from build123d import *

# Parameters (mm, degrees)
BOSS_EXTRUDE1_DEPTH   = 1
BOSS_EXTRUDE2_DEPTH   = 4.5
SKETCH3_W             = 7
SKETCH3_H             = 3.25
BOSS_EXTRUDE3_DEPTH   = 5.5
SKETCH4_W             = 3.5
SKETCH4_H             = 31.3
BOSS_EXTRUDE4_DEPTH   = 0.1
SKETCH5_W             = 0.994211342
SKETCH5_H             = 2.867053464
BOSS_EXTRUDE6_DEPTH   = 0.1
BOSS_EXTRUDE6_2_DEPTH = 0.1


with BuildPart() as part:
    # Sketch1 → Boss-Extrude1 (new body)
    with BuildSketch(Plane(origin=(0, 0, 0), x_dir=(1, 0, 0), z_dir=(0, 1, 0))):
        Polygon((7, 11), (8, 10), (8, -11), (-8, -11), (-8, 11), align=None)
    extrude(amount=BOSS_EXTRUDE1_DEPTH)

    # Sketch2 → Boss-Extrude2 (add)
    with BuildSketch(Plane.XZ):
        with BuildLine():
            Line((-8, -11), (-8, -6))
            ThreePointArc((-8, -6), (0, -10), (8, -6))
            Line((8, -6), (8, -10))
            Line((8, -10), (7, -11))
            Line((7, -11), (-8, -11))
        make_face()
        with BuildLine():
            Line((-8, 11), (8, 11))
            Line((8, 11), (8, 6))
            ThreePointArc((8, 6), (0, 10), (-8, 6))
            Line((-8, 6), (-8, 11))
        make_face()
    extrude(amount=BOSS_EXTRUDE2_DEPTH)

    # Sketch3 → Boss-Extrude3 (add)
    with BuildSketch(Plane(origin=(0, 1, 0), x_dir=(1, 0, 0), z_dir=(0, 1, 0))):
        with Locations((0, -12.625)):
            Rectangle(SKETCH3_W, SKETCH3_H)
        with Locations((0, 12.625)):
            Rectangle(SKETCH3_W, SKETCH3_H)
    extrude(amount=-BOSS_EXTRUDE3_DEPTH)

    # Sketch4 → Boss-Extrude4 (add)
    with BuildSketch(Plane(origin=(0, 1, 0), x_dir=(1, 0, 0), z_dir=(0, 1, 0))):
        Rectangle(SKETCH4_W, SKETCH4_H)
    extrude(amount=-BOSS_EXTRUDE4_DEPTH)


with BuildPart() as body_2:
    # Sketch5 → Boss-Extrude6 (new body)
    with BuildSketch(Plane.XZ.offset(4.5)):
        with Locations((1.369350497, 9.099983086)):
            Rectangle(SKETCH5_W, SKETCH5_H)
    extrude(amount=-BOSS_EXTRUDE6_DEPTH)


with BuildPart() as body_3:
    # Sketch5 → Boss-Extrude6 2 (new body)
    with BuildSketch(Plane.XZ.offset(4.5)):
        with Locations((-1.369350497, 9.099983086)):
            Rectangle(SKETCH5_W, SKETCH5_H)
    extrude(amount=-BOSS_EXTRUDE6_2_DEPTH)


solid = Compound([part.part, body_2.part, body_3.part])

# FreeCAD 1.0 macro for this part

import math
import FreeCAD as App
import Part
import Sketcher

V = App.Vector

doc = App.newDocument("Part")
params = doc.addObject("Spreadsheet::Sheet", "Params")
for row, (alias, value) in enumerate([
    ("sketch1_width", "15 mm"),
    ("sketch1_width2", "16 mm"),
    ("sketch1_height", "22 mm"),
    ("sketch1_height2", "21 mm"),
    ("pad1_length", "1 mm"),
    ("sketch2_radius", "10 mm"),
    ("sketch2_width", "15 mm"),
    ("sketch2_width2", "16 mm"),
    ("sketch2_height", "5 mm"),
    ("sketch2_height2", "4 mm"),
    ("pad2_length", "4.5 mm"),
    ("sketch3_width", "7 mm"),
    ("sketch3_height", "3.25 mm"),
    ("pad3_length", "5.5 mm"),
    ("sketch4_width", "3.5 mm"),
    ("sketch4_height", "31.3 mm"),
    ("pad4_length", "0.1 mm"),
    ("pad5_length", "0.1 mm"),
    ("pad6_length", "0.1 mm"),
], start=1):
    params.set(f"A{row}", alias)
    params.set(f"B{row}", "=" + value)
    params.setAlias(f"B{row}", alias)

body = doc.addObject("PartDesign::Body", "Body")

# Sketch on XZ plane
sketch1 = body.newObject("Sketcher::SketchObject", "Sketch")
sketch1.AttachmentSupport = (doc.getObject("XZ_Plane"), [""])
sketch1.MapMode = "FlatFace"
sketch1.addGeometry([
    Part.LineSegment(V(8, -10, 0), V(7, -11, 0)),  # 0
    Part.LineSegment(V(7, -11, 0), V(-8, -11, 0)),  # 1
    Part.LineSegment(V(-8, -11, 0), V(-8, 11, 0)),  # 2
    Part.LineSegment(V(-8, 11, 0), V(8, 11, 0)),  # 3
    Part.LineSegment(V(8, 11, 0), V(8, -10, 0)),  # 4
], False)
sketch1.addConstraint([
    Sketcher.Constraint("Coincident", 0, 2, 1, 1),
    Sketcher.Constraint("Coincident", 1, 2, 2, 1),
    Sketcher.Constraint("Coincident", 2, 2, 3, 1),
    Sketcher.Constraint("Coincident", 3, 2, 4, 1),
    Sketcher.Constraint("Coincident", 4, 2, 0, 1),
    Sketcher.Constraint("Horizontal", 1),
    Sketcher.Constraint("Vertical", 2),
    Sketcher.Constraint("Horizontal", 3),
    Sketcher.Constraint("Vertical", 4),
    Sketcher.Constraint("Symmetric", 1, 2, 3, 2, -1, 1),
    Sketcher.Constraint("DistanceX", 1, 2, 1, 1, 15.0),
    Sketcher.Constraint("DistanceX", 3, 1, 3, 2, 16.0),
    Sketcher.Constraint("DistanceY", 2, 1, 2, 2, 22.0),
    Sketcher.Constraint("DistanceY", 4, 2, 4, 1, 21.0),
])
sketch1.setExpression("Constraints[10]", "Params.sketch1_width")
sketch1.setExpression("Constraints[11]", "Params.sketch1_width2")
sketch1.setExpression("Constraints[12]", "Params.sketch1_height")
sketch1.setExpression("Constraints[13]", "Params.sketch1_height2")
pad1 = body.newObject("PartDesign::Pad", "Pad")
pad1.Profile = sketch1
pad1.setExpression("Length", "Params.pad1_length")
pad1.Reversed = True

# Sketch on XZ plane
sketch2 = body.newObject("Sketcher::SketchObject", "Sketch001")
sketch2.AttachmentSupport = (doc.getObject("XZ_Plane"), [""])
sketch2.MapMode = "FlatFace"
sketch2.addGeometry([
    Part.LineSegment(V(-8, -6, 0), V(-8, -11, 0)),  # 0
    Part.LineSegment(V(-8, -11, 0), V(7, -11, 0)),  # 1
    Part.LineSegment(V(7, -11, 0), V(8, -10, 0)),  # 2
    Part.LineSegment(V(8, -10, 0), V(8, -6, 0)),  # 3
    Part.ArcOfCircle(Part.Circle(V(0, 0, 0), V(0, 0, 1), 10), math.radians(-143), math.radians(-37)),  # 4
    Part.LineSegment(V(8, 11, 0), V(-8, 11, 0)),  # 5
    Part.LineSegment(V(-8, 11, 0), V(-8, 6, 0)),  # 6
    Part.ArcOfCircle(Part.Circle(V(0, 0, 0), V(0, 0, 1), 10), math.radians(37), math.radians(143)),  # 7
    Part.LineSegment(V(8, 6, 0), V(8, 11, 0)),  # 8
], False)
sketch2.addConstraint([
    Sketcher.Constraint("Coincident", 0, 2, 1, 1),
    Sketcher.Constraint("Coincident", 1, 2, 2, 1),
    Sketcher.Constraint("Coincident", 2, 2, 3, 1),
    Sketcher.Constraint("Coincident", 3, 2, 4, 2),
    Sketcher.Constraint("Coincident", 4, 1, 0, 1),
    Sketcher.Constraint("Coincident", 5, 2, 6, 1),
    Sketcher.Constraint("Coincident", 6, 2, 7, 2),
    Sketcher.Constraint("Coincident", 7, 1, 8, 1),
    Sketcher.Constraint("Coincident", 8, 2, 5, 1),
    Sketcher.Constraint("Vertical", 0),
    Sketcher.Constraint("Horizontal", 1),
    Sketcher.Constraint("Vertical", 3),
    Sketcher.Constraint("Horizontal", 5),
    Sketcher.Constraint("Vertical", 6),
    Sketcher.Constraint("Vertical", 8),
    Sketcher.Constraint("Coincident", 4, 3, -1, 1),
    Sketcher.Constraint("Coincident", 7, 3, -1, 1),
    Sketcher.Constraint("Equal", 4, 7),
    Sketcher.Constraint("Symmetric", 0, 2, 8, 2, -1, 1),
    Sketcher.Constraint("Horizontal", 3, 2, 4, 1),
    Sketcher.Constraint("Horizontal", 6, 2, 7, 1),
    Sketcher.Constraint("Radius", 4, 10.0),
    Sketcher.Constraint("DistanceX", 1, 1, 1, 2, 15.0),
    Sketcher.Constraint("DistanceX", 5, 2, 5, 1, 16.0),
    Sketcher.Constraint("DistanceY", 0, 2, 0, 1, 5.0),
    Sketcher.Constraint("DistanceY", 3, 1, 3, 2, 4.0),
])
sketch2.setExpression("Constraints[21]", "Params.sketch2_radius")
sketch2.setExpression("Constraints[22]", "Params.sketch2_width")
sketch2.setExpression("Constraints[23]", "Params.sketch2_width2")
sketch2.setExpression("Constraints[24]", "Params.sketch2_height")
sketch2.setExpression("Constraints[25]", "Params.sketch2_height2")
pad2 = body.newObject("PartDesign::Pad", "Pad001")
pad2.Profile = sketch2
pad2.setExpression("Length", "Params.pad2_length")

# Sketch on XZ plane
sketch3 = body.newObject("Sketcher::SketchObject", "Sketch002")
sketch3.AttachmentSupport = (doc.getObject("XZ_Plane"), [""])
sketch3.MapMode = "FlatFace"
sketch3.AttachmentOffset = App.Placement(V(0, 0, -1), App.Rotation())
sketch3.addGeometry([
    Part.LineSegment(V(-3.5, 11, 0), V(-3.5, 14.2, 0)),  # 0
    Part.LineSegment(V(-3.5, 14.2, 0), V(3.5, 14.2, 0)),  # 1
    Part.LineSegment(V(3.5, 14.2, 0), V(3.5, 11, 0)),  # 2
    Part.LineSegment(V(3.5, 11, 0), V(-3.5, 11, 0)),  # 3
    Part.LineSegment(V(-3.5, -14.2, 0), V(-3.5, -11, 0)),  # 4
    Part.LineSegment(V(-3.5, -11, 0), V(3.5, -11, 0)),  # 5
    Part.LineSegment(V(3.5, -11, 0), V(3.5, -14.2, 0)),  # 6
    Part.LineSegment(V(3.5, -14.2, 0), V(-3.5, -14.2, 0)),  # 7
], False)
sketch3.addConstraint([
    Sketcher.Constraint("Coincident", 0, 2, 1, 1),
    Sketcher.Constraint("Coincident", 1, 2, 2, 1),
    Sketcher.Constraint("Coincident", 2, 2, 3, 1),
    Sketcher.Constraint("Coincident", 3, 2, 0, 1),
    Sketcher.Constraint("Coincident", 4, 2, 5, 1),
    Sketcher.Constraint("Coincident", 5, 2, 6, 1),
    Sketcher.Constraint("Coincident", 6, 2, 7, 1),
    Sketcher.Constraint("Coincident", 7, 2, 4, 1),
    Sketcher.Constraint("Vertical", 0),
    Sketcher.Constraint("Horizontal", 1),
    Sketcher.Constraint("Vertical", 2),
    Sketcher.Constraint("Horizontal", 3),
    Sketcher.Constraint("Vertical", 4),
    Sketcher.Constraint("Horizontal", 5),
    Sketcher.Constraint("Vertical", 6),
    Sketcher.Constraint("Horizontal", 7),
    Sketcher.Constraint("Symmetric", 2, 2, 4, 2, -1, 1),
    Sketcher.Constraint("Symmetric", 0, 2, 6, 2, -1, 1),
    Sketcher.Constraint("Vertical", 3, 2, 4, 2),
    Sketcher.Constraint("DistanceX", 1, 1, 1, 2, 7.0),
    Sketcher.Constraint("DistanceY", -1, 1, 2, 2, 11.0),
    Sketcher.Constraint("DistanceY", 0, 1, 0, 2, 3.25),
])
sketch3.setExpression("Constraints[19]", "Params.sketch3_width")
sketch3.setExpression("Constraints[21]", "Params.sketch3_height")
pad3 = body.newObject("PartDesign::Pad", "Pad002")
pad3.Profile = sketch3
pad3.setExpression("Length", "Params.pad3_length")

# Sketch on XZ plane
sketch4 = body.newObject("Sketcher::SketchObject", "Sketch003")
sketch4.AttachmentSupport = (doc.getObject("XZ_Plane"), [""])
sketch4.MapMode = "FlatFace"
sketch4.AttachmentOffset = App.Placement(V(0, 0, -1), App.Rotation())
sketch4.addGeometry([
    Part.LineSegment(V(-1.8, -15.7, 0), V(-1.8, 15.7, 0)),
    Part.LineSegment(V(-1.8, 15.7, 0), V(1.8, 15.7, 0)),
    Part.LineSegment(V(1.8, 15.7, 0), V(1.8, -15.7, 0)),
    Part.LineSegment(V(1.8, -15.7, 0), V(-1.8, -15.7, 0)),
], False)
sketch4.addConstraint([
    Sketcher.Constraint("Coincident", 0, 2, 1, 1),
    Sketcher.Constraint("Coincident", 1, 2, 2, 1),
    Sketcher.Constraint("Coincident", 2, 2, 3, 1),
    Sketcher.Constraint("Coincident", 3, 2, 0, 1),
    Sketcher.Constraint("Vertical", 0),
    Sketcher.Constraint("Horizontal", 1),
    Sketcher.Constraint("Vertical", 2),
    Sketcher.Constraint("Horizontal", 3),
    Sketcher.Constraint("Symmetric", 0, 2, 2, 2, -1, 1),
    Sketcher.Constraint("DistanceX", 1, 1, 1, 2, 3.5),
    Sketcher.Constraint("DistanceY", 0, 1, 0, 2, 31.3),
])
sketch4.setExpression("Constraints[9]", "Params.sketch4_width")
sketch4.setExpression("Constraints[10]", "Params.sketch4_height")
pad4 = body.newObject("PartDesign::Pad", "Pad003")
pad4.Profile = sketch4
pad4.setExpression("Length", "Params.pad4_length")
body2 = doc.addObject("PartDesign::Body", "Body001")

# Sketch on XZ plane
sketch5 = body2.newObject("Sketcher::SketchObject", "Sketch004")
sketch5.AttachmentSupport = (doc.getObject("XZ_Plane001"), [""])
sketch5.MapMode = "FlatFace"
sketch5.AttachmentOffset = App.Placement(V(0, 0, 4.5), App.Rotation())
sketch5.addGeometry([
    Part.LineSegment(V(0.9, 10.5, 0), V(0.9, 7.7, 0)),
    Part.LineSegment(V(0.9, 7.7, 0), V(1.9, 7.7, 0)),
    Part.LineSegment(V(1.9, 7.7, 0), V(1.9, 10.5, 0)),
    Part.LineSegment(V(1.9, 10.5, 0), V(0.9, 10.5, 0)),
], False)
sketch5.addConstraint([
    Sketcher.Constraint("Coincident", 0, 2, 1, 1),
    Sketcher.Constraint("Coincident", 1, 2, 2, 1),
    Sketcher.Constraint("Coincident", 2, 2, 3, 1),
    Sketcher.Constraint("Coincident", 3, 2, 0, 1),
    Sketcher.Constraint("Vertical", 0),
    Sketcher.Constraint("Horizontal", 1),
    Sketcher.Constraint("Vertical", 2),
    Sketcher.Constraint("Horizontal", 3),
    Sketcher.Constraint("DistanceX", 1, 1, 1, 2, 0.994211),
    Sketcher.Constraint("DistanceY", 0, 2, 0, 1, 2.867053),
    Sketcher.Constraint("DistanceY", -1, 1, 2, 2, 10.53351),
    Sketcher.Constraint("DistanceX", -1, 1, 0, 2, 0.872245),
])
pad5 = body2.newObject("PartDesign::Pad", "Pad004")
pad5.Profile = sketch5
pad5.setExpression("Length", "Params.pad5_length")
pad5.Reversed = True
body3 = doc.addObject("PartDesign::Body", "Body002")

# Sketch on XZ plane
sketch6 = body3.newObject("Sketcher::SketchObject", "Sketch005")
sketch6.AttachmentSupport = (doc.getObject("XZ_Plane002"), [""])
sketch6.MapMode = "FlatFace"
sketch6.AttachmentOffset = App.Placement(V(0, 0, 4.5), App.Rotation())
sketch6.addGeometry([
    Part.LineSegment(V(-1.9, 10.5, 0), V(-1.9, 7.7, 0)),
    Part.LineSegment(V(-1.9, 7.7, 0), V(-0.9, 7.7, 0)),
    Part.LineSegment(V(-0.9, 7.7, 0), V(-0.9, 10.5, 0)),
    Part.LineSegment(V(-0.9, 10.5, 0), V(-1.9, 10.5, 0)),
], False)
sketch6.addConstraint([
    Sketcher.Constraint("Coincident", 0, 2, 1, 1),
    Sketcher.Constraint("Coincident", 1, 2, 2, 1),
    Sketcher.Constraint("Coincident", 2, 2, 3, 1),
    Sketcher.Constraint("Coincident", 3, 2, 0, 1),
    Sketcher.Constraint("Vertical", 0),
    Sketcher.Constraint("Horizontal", 1),
    Sketcher.Constraint("Vertical", 2),
    Sketcher.Constraint("Horizontal", 3),
    Sketcher.Constraint("DistanceX", 1, 1, 1, 2, 0.994211),
    Sketcher.Constraint("DistanceY", 0, 2, 0, 1, 2.867053),
    Sketcher.Constraint("DistanceY", -1, 1, 2, 2, 10.53351),
    Sketcher.Constraint("DistanceX", 0, 2, -1, 1, 1.866456),
])
pad6 = body3.newObject("PartDesign::Pad", "Pad005")
pad6.Profile = sketch6
pad6.setExpression("Length", "Params.pad6_length")
pad6.Reversed = True

doc.recompute()
